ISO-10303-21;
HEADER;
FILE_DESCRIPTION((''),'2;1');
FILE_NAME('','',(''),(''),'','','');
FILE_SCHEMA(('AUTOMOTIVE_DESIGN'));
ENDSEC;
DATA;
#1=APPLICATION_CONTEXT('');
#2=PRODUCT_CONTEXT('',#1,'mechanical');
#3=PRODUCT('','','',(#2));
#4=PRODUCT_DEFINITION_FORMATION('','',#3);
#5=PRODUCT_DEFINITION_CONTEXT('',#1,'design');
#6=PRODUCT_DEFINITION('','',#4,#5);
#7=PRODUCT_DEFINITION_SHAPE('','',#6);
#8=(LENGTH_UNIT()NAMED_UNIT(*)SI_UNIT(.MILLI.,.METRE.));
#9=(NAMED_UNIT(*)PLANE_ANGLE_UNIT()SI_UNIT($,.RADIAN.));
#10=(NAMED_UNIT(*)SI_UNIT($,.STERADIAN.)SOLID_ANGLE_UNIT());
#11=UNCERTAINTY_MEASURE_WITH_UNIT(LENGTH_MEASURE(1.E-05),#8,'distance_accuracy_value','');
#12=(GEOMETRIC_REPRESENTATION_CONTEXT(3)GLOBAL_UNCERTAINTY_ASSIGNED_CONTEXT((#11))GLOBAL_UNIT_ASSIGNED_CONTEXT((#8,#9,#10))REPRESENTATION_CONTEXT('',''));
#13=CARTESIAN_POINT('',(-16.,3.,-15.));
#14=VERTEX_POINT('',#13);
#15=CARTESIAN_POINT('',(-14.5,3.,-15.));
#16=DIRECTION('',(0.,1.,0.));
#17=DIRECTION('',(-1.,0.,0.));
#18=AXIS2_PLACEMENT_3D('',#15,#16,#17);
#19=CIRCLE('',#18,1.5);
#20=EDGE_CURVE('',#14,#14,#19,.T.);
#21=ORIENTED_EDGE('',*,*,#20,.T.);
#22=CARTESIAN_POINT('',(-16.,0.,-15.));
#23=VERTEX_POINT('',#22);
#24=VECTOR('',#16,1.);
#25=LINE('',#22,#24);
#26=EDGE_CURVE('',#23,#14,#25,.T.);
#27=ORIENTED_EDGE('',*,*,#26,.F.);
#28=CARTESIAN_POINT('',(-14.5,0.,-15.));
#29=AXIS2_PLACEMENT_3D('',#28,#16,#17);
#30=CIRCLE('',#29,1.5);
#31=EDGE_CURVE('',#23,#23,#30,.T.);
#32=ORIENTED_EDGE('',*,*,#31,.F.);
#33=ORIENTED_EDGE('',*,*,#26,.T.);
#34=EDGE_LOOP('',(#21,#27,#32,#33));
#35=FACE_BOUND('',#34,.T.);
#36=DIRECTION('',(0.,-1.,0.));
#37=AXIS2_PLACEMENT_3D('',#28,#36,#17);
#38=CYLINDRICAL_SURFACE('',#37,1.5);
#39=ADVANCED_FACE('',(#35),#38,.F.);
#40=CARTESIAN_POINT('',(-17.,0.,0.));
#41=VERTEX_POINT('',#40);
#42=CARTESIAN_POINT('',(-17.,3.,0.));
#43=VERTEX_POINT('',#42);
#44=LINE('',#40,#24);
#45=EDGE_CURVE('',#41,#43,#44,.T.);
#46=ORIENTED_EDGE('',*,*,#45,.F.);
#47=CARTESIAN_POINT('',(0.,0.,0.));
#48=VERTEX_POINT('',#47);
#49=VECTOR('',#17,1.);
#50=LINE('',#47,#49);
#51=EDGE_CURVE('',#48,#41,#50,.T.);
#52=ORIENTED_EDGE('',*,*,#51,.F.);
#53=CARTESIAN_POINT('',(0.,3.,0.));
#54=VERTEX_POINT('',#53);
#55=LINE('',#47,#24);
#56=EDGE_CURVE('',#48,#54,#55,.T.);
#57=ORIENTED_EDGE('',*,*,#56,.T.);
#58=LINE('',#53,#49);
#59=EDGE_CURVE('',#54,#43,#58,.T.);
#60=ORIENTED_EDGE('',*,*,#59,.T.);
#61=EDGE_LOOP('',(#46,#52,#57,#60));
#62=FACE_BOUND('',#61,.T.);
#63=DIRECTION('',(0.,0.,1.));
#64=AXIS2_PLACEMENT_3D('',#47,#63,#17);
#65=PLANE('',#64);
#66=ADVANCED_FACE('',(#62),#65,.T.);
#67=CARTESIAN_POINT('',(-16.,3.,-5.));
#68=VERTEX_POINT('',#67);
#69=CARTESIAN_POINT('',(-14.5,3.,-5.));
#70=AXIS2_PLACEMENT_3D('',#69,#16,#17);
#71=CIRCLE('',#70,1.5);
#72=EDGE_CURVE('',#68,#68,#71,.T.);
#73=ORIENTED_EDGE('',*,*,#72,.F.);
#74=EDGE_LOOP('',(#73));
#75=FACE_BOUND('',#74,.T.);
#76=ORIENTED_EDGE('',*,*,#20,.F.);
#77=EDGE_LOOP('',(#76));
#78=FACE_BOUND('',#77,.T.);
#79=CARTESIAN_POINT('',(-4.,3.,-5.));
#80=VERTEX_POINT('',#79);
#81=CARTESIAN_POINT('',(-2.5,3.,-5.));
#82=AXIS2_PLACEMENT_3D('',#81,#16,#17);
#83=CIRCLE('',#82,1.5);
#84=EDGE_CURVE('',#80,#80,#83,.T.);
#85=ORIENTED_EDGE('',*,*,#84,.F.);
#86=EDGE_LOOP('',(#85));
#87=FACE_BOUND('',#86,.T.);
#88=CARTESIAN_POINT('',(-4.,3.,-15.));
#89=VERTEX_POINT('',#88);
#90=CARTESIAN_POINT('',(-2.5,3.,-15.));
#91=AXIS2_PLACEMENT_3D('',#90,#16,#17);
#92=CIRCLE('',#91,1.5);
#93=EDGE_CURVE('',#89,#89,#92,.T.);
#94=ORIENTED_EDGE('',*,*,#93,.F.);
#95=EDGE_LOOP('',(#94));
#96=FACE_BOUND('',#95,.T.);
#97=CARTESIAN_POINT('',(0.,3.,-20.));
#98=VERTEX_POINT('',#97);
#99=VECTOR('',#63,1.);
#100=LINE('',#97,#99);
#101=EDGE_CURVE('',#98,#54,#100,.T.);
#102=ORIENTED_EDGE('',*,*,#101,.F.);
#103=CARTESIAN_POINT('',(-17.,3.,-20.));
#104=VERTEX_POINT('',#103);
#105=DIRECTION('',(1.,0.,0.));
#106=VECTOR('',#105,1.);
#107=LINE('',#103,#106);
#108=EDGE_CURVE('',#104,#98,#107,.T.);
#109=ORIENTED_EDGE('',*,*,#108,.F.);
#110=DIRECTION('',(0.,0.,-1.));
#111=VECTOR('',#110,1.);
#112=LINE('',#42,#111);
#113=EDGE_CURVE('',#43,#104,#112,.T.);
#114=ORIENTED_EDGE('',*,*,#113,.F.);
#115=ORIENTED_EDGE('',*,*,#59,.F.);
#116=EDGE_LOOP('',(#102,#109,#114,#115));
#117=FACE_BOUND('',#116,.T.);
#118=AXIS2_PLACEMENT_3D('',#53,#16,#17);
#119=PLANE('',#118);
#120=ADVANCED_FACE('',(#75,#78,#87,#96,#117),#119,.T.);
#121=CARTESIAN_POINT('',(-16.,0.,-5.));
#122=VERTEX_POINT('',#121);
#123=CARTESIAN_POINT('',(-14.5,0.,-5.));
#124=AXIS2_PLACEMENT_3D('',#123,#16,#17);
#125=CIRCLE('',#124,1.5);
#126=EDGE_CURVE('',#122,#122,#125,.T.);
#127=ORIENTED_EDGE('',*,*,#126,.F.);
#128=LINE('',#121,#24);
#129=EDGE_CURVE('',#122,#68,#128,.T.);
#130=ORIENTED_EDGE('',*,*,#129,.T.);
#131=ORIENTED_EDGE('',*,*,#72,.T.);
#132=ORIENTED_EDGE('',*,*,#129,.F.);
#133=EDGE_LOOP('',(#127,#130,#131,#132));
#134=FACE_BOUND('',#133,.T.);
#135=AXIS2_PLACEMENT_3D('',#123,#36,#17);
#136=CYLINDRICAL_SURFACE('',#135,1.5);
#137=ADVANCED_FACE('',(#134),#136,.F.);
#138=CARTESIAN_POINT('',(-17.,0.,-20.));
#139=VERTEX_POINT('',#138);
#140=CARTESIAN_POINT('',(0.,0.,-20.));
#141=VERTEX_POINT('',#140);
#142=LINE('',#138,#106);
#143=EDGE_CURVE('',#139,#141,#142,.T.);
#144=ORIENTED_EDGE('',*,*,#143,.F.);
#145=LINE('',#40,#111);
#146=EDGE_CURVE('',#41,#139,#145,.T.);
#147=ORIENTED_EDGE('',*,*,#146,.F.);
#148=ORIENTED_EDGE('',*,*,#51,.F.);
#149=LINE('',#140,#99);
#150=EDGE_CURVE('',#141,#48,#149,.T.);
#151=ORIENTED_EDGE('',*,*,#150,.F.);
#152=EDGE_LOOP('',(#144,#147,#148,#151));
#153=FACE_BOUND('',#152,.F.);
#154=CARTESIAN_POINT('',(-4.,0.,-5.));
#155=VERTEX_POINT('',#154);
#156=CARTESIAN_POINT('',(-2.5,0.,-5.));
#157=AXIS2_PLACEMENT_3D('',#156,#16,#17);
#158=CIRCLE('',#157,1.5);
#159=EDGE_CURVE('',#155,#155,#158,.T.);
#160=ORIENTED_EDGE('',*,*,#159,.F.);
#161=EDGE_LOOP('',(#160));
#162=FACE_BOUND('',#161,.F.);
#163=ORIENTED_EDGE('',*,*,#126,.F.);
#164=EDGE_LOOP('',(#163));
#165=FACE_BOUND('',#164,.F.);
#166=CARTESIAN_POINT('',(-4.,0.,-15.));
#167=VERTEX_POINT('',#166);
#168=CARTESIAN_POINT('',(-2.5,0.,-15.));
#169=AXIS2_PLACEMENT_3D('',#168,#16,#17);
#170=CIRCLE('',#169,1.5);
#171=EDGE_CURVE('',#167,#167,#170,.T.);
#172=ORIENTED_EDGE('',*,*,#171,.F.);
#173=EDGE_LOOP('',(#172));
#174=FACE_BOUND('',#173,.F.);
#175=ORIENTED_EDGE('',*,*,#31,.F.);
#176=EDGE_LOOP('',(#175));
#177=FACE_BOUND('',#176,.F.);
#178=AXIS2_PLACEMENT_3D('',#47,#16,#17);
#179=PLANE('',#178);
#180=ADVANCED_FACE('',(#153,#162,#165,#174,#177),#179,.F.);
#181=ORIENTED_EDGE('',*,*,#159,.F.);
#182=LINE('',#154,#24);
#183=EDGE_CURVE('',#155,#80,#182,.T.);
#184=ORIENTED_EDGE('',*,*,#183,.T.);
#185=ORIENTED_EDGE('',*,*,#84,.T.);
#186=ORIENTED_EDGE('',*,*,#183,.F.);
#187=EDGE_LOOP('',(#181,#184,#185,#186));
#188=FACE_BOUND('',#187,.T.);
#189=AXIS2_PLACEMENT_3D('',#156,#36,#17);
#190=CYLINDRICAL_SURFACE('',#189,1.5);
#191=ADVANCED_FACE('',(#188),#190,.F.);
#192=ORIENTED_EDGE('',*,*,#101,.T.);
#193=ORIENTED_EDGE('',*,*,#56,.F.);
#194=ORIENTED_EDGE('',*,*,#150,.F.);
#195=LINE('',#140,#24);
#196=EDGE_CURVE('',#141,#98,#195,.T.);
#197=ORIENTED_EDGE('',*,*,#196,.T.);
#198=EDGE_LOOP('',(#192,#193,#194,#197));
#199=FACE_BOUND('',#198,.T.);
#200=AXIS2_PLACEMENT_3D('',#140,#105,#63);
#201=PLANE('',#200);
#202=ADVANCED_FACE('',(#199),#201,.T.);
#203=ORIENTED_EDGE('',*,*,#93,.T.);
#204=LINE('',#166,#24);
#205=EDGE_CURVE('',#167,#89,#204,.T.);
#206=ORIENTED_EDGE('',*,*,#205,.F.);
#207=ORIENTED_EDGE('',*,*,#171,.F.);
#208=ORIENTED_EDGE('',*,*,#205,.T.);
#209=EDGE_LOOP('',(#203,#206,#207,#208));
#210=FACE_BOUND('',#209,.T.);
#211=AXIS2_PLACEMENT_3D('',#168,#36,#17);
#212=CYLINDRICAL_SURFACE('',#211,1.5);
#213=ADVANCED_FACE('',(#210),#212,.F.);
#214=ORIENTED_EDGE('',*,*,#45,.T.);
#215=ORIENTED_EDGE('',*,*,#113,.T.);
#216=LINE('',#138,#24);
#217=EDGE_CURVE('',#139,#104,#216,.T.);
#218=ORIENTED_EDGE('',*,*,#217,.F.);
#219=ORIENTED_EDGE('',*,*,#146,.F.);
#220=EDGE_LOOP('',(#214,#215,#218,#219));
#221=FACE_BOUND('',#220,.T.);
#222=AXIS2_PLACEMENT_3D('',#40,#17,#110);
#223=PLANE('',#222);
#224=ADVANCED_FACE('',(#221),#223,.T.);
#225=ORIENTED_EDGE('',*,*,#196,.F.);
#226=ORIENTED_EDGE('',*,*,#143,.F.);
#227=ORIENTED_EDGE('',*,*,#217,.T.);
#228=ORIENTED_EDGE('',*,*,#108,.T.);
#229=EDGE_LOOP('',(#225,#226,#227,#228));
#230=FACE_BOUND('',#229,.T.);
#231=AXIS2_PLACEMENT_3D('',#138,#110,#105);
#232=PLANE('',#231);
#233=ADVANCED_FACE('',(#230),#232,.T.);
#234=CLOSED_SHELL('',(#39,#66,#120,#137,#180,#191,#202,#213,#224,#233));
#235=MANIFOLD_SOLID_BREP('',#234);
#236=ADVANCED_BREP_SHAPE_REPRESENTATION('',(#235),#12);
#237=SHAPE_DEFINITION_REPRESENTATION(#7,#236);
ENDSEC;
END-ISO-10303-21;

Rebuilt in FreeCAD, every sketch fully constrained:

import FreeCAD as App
import Part
import Sketcher

V = App.Vector
Q = App.Units.Quantity


def add_polygon(sketch, points):
    """Adds a closed chain of lines whose ends are joined by coincident constraints."""
    first, n = sketch.GeometryCount, len(points)
    for a, b in zip(points, points[1:] + points[:1]):
        sketch.addGeometry(Part.LineSegment(App.Vector(*a, 0), App.Vector(*b, 0)), False)
    for i in range(n):
        sketch.addConstraint(Sketcher.Constraint("Coincident", first + i, 2, first + (i + 1) % n, 1))

doc = App.newDocument("Part")
body = doc.addObject("PartDesign::Body", "Body")

sketch1 = body.newObject("Sketcher::SketchObject", "Sketch")
sketch1.AttachmentSupport = (doc.getObject("XZ_Plane"), [""])
sketch1.MapMode = "FlatFace"
add_polygon(sketch1, [(-17, 0), (0, 0), (0, -20), (-17, -20)])
sketch1.addGeometry(Part.Circle(V(-2.5, -15, 0), V(0, 0, 1), 1.5), False)
sketch1.addGeometry(Part.Circle(V(-14.5, -15, 0), V(0, 0, 1), 1.5), False)
sketch1.addGeometry(Part.Circle(V(-2.5, -5, 0), V(0, 0, 1), 1.5), False)
sketch1.addGeometry(Part.Circle(V(-14.5, -5, 0), V(0, 0, 1), 1.5), False)
sketch1.addConstraint([
    Sketcher.Constraint("Horizontal", 0),
    Sketcher.Constraint("Vertical", 1),
    Sketcher.Constraint("Horizontal", 2),
    Sketcher.Constraint("Vertical", 3),
    Sketcher.Constraint("Coincident", 0, 2, -1, 1),
    Sketcher.Constraint("Equal", 4, 5),
    Sketcher.Constraint("Equal", 5, 6),
    Sketcher.Constraint("Equal", 6, 7),
    Sketcher.Constraint("Horizontal", 4, 3, 5, 3),
    Sketcher.Constraint("Horizontal", 6, 3, 7, 3),
    Sketcher.Constraint("Vertical", 4, 3, 6, 3),
    Sketcher.Constraint("Vertical", 5, 3, 7, 3),
    Sketcher.Constraint("Diameter", 4, Q("3 mm")),
    Sketcher.Constraint("DistanceX", 0, 1, 0, 2, Q("17 mm")),
    Sketcher.Constraint("DistanceY", 1, 2, 1, 1, Q("20 mm")),
    Sketcher.Constraint("DistanceY", 4, 3, 6, 3, Q("10 mm")),
    Sketcher.Constraint("DistanceX", 4, 3, -1, 1, Q("2.5 mm")),
    Sketcher.Constraint("DistanceX", 2, 2, 5, 3, Q("2.5 mm")),
    Sketcher.Constraint("DistanceY", 4, 3, -1, 1, Q("15 mm")),
])
pad1 = body.newObject("PartDesign::Pad", "Pad")
pad1.Profile = sketch1
pad1.Length = 3
pad1.Reversed = True

doc.recompute()
